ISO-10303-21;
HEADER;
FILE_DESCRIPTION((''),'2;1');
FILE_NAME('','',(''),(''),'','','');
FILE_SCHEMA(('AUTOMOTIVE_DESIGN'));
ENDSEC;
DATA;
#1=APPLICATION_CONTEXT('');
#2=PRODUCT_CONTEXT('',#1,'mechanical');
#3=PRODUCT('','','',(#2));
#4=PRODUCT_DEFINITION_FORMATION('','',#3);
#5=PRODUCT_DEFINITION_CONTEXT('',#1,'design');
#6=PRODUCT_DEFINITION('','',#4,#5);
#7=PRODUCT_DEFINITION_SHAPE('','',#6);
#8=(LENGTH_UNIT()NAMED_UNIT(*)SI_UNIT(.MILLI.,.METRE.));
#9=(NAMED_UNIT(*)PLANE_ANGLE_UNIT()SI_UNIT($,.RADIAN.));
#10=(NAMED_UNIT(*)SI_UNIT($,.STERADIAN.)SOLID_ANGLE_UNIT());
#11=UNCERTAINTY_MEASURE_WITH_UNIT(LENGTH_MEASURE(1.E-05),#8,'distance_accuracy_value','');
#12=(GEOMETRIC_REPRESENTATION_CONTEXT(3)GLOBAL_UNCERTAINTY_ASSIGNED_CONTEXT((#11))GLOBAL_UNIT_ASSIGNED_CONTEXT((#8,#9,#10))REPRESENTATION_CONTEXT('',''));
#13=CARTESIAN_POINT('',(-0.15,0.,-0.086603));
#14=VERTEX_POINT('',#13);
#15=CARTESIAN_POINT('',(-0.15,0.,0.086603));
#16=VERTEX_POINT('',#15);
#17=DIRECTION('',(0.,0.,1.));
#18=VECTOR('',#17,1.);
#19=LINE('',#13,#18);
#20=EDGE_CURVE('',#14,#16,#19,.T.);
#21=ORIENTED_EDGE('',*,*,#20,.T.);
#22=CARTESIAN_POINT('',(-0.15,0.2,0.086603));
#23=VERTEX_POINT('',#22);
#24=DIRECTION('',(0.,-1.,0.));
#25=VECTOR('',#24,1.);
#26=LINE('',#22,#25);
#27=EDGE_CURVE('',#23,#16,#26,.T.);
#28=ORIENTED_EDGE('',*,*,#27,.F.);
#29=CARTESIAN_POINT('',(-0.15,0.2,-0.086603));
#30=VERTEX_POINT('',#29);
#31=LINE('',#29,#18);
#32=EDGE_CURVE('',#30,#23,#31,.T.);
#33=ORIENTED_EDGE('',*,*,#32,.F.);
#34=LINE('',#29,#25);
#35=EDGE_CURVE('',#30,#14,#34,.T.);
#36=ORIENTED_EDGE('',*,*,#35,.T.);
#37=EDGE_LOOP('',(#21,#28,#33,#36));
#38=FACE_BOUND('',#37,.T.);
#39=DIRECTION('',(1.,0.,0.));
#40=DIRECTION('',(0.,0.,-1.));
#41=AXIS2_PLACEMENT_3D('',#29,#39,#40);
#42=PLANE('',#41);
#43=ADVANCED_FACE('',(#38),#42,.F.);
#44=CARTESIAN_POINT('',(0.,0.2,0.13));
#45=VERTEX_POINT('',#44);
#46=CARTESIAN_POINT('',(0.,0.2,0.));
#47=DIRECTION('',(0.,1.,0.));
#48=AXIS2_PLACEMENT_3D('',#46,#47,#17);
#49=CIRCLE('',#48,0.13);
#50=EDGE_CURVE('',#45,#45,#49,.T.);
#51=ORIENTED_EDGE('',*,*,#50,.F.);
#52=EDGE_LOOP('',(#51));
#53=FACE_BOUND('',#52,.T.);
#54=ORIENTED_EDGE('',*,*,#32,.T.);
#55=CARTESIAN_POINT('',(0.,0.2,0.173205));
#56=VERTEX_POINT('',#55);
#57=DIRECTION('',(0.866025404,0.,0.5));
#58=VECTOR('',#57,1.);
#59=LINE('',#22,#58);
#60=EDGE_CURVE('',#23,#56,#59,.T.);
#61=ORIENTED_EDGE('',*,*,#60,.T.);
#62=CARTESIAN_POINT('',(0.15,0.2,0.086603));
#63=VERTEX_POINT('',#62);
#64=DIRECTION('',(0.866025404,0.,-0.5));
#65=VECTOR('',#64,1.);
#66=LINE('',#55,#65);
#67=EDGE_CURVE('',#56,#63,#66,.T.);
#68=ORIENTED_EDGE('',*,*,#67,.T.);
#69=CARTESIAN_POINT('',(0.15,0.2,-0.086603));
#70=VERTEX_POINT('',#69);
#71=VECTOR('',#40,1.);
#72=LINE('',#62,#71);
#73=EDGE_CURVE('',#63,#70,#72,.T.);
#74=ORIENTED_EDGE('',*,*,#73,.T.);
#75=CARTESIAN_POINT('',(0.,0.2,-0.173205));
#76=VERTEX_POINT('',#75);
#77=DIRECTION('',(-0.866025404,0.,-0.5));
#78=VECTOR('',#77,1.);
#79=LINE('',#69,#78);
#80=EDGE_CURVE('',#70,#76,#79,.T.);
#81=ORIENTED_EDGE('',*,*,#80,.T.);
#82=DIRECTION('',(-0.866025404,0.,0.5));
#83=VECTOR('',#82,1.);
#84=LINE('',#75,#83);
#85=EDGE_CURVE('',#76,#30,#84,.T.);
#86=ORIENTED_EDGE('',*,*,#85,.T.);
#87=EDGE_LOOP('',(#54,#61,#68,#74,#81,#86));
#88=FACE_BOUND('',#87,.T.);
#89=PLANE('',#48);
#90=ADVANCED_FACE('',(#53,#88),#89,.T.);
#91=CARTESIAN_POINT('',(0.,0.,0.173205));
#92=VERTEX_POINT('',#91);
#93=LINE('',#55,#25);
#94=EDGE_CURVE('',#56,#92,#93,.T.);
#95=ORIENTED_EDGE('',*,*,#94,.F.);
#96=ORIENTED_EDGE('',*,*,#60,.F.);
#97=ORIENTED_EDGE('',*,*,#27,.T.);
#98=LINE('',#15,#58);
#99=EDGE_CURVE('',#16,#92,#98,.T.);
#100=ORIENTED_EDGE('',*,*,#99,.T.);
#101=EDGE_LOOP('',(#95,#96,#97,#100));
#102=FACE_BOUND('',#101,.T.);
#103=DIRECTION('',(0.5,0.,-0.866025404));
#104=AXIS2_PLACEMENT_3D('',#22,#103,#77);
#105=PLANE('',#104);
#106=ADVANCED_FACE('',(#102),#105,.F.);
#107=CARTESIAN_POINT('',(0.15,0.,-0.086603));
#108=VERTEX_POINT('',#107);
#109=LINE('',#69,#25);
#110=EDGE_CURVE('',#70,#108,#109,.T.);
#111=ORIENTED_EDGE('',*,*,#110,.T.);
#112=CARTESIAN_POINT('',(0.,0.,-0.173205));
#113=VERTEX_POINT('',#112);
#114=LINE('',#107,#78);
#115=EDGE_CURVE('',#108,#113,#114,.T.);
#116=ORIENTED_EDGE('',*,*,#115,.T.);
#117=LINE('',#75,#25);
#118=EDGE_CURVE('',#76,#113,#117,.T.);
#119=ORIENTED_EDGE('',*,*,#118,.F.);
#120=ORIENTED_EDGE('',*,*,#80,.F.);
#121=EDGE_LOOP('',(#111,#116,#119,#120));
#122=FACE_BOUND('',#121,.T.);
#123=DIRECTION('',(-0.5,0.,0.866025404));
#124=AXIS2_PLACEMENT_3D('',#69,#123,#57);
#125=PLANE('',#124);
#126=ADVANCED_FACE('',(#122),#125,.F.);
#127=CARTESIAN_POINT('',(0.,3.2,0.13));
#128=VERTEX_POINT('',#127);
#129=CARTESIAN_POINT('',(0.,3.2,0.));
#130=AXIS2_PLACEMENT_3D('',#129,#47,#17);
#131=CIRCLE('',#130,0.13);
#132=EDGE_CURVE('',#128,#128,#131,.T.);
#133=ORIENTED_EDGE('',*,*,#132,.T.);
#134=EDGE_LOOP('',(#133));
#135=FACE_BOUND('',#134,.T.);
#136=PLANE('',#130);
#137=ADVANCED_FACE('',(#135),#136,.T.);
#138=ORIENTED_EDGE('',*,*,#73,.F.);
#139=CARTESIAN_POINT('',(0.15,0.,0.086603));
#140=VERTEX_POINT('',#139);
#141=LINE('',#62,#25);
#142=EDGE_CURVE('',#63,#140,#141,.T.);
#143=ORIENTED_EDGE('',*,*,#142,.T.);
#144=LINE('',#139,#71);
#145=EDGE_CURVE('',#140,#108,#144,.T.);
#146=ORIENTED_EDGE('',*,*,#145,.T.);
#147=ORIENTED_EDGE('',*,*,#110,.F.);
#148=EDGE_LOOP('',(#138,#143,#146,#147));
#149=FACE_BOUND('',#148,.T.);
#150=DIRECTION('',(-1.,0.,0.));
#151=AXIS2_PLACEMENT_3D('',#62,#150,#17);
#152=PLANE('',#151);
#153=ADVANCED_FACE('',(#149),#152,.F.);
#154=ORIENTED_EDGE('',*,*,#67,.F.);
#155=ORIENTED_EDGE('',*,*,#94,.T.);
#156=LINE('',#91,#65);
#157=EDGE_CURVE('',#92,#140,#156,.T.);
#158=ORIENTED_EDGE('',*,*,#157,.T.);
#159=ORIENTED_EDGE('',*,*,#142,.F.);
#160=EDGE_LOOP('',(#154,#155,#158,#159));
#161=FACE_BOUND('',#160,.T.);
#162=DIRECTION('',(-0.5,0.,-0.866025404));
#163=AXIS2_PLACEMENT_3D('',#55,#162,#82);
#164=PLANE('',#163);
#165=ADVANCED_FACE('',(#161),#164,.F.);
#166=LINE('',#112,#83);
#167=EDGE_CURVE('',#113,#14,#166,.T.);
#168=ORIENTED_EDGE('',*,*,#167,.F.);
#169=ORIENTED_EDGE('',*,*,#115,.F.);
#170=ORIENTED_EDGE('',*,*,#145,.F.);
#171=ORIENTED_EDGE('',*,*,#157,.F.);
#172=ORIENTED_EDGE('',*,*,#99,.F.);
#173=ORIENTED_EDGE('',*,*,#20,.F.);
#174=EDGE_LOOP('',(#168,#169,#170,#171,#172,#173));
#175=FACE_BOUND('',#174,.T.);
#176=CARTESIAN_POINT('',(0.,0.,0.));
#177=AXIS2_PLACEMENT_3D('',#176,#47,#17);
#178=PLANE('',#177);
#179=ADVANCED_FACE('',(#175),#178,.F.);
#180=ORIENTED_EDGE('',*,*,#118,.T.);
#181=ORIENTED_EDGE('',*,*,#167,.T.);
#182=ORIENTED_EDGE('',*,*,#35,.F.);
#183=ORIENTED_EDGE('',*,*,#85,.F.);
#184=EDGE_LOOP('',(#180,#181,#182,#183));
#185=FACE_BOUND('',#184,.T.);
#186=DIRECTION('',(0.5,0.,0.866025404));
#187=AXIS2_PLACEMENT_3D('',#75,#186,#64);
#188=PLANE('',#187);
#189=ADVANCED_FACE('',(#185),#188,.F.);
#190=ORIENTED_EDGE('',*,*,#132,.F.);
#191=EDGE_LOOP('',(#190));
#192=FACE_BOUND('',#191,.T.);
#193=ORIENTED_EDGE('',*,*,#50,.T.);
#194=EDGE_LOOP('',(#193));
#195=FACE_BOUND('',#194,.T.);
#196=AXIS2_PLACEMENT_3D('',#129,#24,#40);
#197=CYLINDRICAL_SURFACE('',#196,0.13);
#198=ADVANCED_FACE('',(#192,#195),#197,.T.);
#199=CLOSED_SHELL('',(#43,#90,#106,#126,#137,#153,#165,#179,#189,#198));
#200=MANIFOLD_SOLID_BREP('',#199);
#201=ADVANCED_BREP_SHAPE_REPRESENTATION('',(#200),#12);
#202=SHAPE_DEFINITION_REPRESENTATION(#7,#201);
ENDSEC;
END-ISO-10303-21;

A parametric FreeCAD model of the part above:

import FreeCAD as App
import Part
import Sketcher

V = App.Vector
Q = App.Units.Quantity

doc = App.newDocument("Part")
params = doc.addObject("Spreadsheet::Sheet", "Params")
for row, (alias, value) in enumerate([
    ("pad1_length", "0.2 mm"),
    ("sketch2_diameter", "0.26 mm"),
    ("pad2_length", "3 mm"),
], start=1):
    params.set(f"A{row}", alias)
    params.set(f"B{row}", "=" + value)
    params.setAlias(f"B{row}", alias)

body = doc.addObject("PartDesign::Body", "Body")

# Sketch on XZ plane
sketch1 = body.newObject("Sketcher::SketchObject", "Sketch")
sketch1.AttachmentSupport = (doc.getObject("XZ_Plane"), [""])
sketch1.MapMode = "FlatFace"
sketch1.addGeometry(Part.LineSegment(V(0.15, 0.086603, 0), V(0.15, -0.086603, 0)), False)
sketch1.addGeometry(Part.LineSegment(V(0.15, -0.086603, 0), V(0, -0.173205, 0)), False)
sketch1.addGeometry(Part.LineSegment(V(0, -0.173205, 0), V(-0.15, -0.086603, 0)), False)
sketch1.addGeometry(Part.LineSegment(V(-0.15, -0.086603, 0), V(-0.15, 0.086603, 0)), False)
sketch1.addGeometry(Part.LineSegment(V(-0.15, 0.086603, 0), V(0, 0.173205, 0)), False)
sketch1.addGeometry(Part.LineSegment(V(0, 0.173205, 0), V(0.15, 0.086603, 0)), False)
sketch1.addConstraint(Sketcher.Constraint("Coincident", 0, 2, 1, 1))
sketch1.addConstraint(Sketcher.Constraint("Coincident", 1, 2, 2, 1))
sketch1.addConstraint(Sketcher.Constraint("Coincident", 2, 2, 3, 1))
sketch1.addConstraint(Sketcher.Constraint("Coincident", 3, 2, 4, 1))
sketch1.addConstraint(Sketcher.Constraint("Coincident", 4, 2, 5, 1))
sketch1.addConstraint(Sketcher.Constraint("Coincident", 5, 2, 0, 1))
sketch1.addConstraint(Sketcher.Constraint("Vertical", 0))
sketch1.addConstraint(Sketcher.Constraint("Vertical", 3))
sketch1.addConstraint(Sketcher.Constraint("Symmetric", 0, 2, 3, 2, -1, 1))
sketch1.addConstraint(Sketcher.Constraint("Symmetric", 1, 2, 4, 2, -1, 1))
sketch1.addConstraint(Sketcher.Constraint("PointOnObject", 1, 2, -2))
sketch1.addConstraint(Sketcher.Constraint("Parallel", 2, 5))
sketch1.addConstraint(Sketcher.Constraint("Horizontal", 0, 2, 2, 2))
sketch1.addConstraint(Sketcher.Constraint("Angle", 1, Q("-150 deg")))
sketch1.addConstraint(Sketcher.Constraint("DistanceX", 2, 2, 0, 2, 0.3))
sketch1.addConstraint(Sketcher.Constraint("DistanceY", 0, 2, 0, 1, 0.173205))
pad1 = body.newObject("PartDesign::Pad", "Pad")
pad1.Profile = sketch1
pad1.setExpression("Length", "Params.pad1_length")
pad1.Reversed = True

# Sketch on XZ plane
sketch2 = body.newObject("Sketcher::SketchObject", "Sketch001")
sketch2.AttachmentSupport = (doc.getObject("XZ_Plane"), [""])
sketch2.MapMode = "FlatFace"
sketch2.AttachmentOffset = App.Placement(V(0, 0, -0.2), App.Rotation())
sketch2.addGeometry(Part.Circle(V(0, 0, 0), V(0, 0, 1), 0.13), False)
sketch2.addConstraint(Sketcher.Constraint("Coincident", 0, 3, -1, 1))
sketch2.addConstraint(Sketcher.Constraint("Diameter", 0, 0.26))
sketch2.setExpression("Constraints[1]", "Params.sketch2_diameter")
pad2 = body.newObject("PartDesign::Pad", "Pad001")
pad2.Profile = sketch2
pad2.setExpression("Length", "Params.pad2_length")
pad2.Reversed = True

doc.recompute()
